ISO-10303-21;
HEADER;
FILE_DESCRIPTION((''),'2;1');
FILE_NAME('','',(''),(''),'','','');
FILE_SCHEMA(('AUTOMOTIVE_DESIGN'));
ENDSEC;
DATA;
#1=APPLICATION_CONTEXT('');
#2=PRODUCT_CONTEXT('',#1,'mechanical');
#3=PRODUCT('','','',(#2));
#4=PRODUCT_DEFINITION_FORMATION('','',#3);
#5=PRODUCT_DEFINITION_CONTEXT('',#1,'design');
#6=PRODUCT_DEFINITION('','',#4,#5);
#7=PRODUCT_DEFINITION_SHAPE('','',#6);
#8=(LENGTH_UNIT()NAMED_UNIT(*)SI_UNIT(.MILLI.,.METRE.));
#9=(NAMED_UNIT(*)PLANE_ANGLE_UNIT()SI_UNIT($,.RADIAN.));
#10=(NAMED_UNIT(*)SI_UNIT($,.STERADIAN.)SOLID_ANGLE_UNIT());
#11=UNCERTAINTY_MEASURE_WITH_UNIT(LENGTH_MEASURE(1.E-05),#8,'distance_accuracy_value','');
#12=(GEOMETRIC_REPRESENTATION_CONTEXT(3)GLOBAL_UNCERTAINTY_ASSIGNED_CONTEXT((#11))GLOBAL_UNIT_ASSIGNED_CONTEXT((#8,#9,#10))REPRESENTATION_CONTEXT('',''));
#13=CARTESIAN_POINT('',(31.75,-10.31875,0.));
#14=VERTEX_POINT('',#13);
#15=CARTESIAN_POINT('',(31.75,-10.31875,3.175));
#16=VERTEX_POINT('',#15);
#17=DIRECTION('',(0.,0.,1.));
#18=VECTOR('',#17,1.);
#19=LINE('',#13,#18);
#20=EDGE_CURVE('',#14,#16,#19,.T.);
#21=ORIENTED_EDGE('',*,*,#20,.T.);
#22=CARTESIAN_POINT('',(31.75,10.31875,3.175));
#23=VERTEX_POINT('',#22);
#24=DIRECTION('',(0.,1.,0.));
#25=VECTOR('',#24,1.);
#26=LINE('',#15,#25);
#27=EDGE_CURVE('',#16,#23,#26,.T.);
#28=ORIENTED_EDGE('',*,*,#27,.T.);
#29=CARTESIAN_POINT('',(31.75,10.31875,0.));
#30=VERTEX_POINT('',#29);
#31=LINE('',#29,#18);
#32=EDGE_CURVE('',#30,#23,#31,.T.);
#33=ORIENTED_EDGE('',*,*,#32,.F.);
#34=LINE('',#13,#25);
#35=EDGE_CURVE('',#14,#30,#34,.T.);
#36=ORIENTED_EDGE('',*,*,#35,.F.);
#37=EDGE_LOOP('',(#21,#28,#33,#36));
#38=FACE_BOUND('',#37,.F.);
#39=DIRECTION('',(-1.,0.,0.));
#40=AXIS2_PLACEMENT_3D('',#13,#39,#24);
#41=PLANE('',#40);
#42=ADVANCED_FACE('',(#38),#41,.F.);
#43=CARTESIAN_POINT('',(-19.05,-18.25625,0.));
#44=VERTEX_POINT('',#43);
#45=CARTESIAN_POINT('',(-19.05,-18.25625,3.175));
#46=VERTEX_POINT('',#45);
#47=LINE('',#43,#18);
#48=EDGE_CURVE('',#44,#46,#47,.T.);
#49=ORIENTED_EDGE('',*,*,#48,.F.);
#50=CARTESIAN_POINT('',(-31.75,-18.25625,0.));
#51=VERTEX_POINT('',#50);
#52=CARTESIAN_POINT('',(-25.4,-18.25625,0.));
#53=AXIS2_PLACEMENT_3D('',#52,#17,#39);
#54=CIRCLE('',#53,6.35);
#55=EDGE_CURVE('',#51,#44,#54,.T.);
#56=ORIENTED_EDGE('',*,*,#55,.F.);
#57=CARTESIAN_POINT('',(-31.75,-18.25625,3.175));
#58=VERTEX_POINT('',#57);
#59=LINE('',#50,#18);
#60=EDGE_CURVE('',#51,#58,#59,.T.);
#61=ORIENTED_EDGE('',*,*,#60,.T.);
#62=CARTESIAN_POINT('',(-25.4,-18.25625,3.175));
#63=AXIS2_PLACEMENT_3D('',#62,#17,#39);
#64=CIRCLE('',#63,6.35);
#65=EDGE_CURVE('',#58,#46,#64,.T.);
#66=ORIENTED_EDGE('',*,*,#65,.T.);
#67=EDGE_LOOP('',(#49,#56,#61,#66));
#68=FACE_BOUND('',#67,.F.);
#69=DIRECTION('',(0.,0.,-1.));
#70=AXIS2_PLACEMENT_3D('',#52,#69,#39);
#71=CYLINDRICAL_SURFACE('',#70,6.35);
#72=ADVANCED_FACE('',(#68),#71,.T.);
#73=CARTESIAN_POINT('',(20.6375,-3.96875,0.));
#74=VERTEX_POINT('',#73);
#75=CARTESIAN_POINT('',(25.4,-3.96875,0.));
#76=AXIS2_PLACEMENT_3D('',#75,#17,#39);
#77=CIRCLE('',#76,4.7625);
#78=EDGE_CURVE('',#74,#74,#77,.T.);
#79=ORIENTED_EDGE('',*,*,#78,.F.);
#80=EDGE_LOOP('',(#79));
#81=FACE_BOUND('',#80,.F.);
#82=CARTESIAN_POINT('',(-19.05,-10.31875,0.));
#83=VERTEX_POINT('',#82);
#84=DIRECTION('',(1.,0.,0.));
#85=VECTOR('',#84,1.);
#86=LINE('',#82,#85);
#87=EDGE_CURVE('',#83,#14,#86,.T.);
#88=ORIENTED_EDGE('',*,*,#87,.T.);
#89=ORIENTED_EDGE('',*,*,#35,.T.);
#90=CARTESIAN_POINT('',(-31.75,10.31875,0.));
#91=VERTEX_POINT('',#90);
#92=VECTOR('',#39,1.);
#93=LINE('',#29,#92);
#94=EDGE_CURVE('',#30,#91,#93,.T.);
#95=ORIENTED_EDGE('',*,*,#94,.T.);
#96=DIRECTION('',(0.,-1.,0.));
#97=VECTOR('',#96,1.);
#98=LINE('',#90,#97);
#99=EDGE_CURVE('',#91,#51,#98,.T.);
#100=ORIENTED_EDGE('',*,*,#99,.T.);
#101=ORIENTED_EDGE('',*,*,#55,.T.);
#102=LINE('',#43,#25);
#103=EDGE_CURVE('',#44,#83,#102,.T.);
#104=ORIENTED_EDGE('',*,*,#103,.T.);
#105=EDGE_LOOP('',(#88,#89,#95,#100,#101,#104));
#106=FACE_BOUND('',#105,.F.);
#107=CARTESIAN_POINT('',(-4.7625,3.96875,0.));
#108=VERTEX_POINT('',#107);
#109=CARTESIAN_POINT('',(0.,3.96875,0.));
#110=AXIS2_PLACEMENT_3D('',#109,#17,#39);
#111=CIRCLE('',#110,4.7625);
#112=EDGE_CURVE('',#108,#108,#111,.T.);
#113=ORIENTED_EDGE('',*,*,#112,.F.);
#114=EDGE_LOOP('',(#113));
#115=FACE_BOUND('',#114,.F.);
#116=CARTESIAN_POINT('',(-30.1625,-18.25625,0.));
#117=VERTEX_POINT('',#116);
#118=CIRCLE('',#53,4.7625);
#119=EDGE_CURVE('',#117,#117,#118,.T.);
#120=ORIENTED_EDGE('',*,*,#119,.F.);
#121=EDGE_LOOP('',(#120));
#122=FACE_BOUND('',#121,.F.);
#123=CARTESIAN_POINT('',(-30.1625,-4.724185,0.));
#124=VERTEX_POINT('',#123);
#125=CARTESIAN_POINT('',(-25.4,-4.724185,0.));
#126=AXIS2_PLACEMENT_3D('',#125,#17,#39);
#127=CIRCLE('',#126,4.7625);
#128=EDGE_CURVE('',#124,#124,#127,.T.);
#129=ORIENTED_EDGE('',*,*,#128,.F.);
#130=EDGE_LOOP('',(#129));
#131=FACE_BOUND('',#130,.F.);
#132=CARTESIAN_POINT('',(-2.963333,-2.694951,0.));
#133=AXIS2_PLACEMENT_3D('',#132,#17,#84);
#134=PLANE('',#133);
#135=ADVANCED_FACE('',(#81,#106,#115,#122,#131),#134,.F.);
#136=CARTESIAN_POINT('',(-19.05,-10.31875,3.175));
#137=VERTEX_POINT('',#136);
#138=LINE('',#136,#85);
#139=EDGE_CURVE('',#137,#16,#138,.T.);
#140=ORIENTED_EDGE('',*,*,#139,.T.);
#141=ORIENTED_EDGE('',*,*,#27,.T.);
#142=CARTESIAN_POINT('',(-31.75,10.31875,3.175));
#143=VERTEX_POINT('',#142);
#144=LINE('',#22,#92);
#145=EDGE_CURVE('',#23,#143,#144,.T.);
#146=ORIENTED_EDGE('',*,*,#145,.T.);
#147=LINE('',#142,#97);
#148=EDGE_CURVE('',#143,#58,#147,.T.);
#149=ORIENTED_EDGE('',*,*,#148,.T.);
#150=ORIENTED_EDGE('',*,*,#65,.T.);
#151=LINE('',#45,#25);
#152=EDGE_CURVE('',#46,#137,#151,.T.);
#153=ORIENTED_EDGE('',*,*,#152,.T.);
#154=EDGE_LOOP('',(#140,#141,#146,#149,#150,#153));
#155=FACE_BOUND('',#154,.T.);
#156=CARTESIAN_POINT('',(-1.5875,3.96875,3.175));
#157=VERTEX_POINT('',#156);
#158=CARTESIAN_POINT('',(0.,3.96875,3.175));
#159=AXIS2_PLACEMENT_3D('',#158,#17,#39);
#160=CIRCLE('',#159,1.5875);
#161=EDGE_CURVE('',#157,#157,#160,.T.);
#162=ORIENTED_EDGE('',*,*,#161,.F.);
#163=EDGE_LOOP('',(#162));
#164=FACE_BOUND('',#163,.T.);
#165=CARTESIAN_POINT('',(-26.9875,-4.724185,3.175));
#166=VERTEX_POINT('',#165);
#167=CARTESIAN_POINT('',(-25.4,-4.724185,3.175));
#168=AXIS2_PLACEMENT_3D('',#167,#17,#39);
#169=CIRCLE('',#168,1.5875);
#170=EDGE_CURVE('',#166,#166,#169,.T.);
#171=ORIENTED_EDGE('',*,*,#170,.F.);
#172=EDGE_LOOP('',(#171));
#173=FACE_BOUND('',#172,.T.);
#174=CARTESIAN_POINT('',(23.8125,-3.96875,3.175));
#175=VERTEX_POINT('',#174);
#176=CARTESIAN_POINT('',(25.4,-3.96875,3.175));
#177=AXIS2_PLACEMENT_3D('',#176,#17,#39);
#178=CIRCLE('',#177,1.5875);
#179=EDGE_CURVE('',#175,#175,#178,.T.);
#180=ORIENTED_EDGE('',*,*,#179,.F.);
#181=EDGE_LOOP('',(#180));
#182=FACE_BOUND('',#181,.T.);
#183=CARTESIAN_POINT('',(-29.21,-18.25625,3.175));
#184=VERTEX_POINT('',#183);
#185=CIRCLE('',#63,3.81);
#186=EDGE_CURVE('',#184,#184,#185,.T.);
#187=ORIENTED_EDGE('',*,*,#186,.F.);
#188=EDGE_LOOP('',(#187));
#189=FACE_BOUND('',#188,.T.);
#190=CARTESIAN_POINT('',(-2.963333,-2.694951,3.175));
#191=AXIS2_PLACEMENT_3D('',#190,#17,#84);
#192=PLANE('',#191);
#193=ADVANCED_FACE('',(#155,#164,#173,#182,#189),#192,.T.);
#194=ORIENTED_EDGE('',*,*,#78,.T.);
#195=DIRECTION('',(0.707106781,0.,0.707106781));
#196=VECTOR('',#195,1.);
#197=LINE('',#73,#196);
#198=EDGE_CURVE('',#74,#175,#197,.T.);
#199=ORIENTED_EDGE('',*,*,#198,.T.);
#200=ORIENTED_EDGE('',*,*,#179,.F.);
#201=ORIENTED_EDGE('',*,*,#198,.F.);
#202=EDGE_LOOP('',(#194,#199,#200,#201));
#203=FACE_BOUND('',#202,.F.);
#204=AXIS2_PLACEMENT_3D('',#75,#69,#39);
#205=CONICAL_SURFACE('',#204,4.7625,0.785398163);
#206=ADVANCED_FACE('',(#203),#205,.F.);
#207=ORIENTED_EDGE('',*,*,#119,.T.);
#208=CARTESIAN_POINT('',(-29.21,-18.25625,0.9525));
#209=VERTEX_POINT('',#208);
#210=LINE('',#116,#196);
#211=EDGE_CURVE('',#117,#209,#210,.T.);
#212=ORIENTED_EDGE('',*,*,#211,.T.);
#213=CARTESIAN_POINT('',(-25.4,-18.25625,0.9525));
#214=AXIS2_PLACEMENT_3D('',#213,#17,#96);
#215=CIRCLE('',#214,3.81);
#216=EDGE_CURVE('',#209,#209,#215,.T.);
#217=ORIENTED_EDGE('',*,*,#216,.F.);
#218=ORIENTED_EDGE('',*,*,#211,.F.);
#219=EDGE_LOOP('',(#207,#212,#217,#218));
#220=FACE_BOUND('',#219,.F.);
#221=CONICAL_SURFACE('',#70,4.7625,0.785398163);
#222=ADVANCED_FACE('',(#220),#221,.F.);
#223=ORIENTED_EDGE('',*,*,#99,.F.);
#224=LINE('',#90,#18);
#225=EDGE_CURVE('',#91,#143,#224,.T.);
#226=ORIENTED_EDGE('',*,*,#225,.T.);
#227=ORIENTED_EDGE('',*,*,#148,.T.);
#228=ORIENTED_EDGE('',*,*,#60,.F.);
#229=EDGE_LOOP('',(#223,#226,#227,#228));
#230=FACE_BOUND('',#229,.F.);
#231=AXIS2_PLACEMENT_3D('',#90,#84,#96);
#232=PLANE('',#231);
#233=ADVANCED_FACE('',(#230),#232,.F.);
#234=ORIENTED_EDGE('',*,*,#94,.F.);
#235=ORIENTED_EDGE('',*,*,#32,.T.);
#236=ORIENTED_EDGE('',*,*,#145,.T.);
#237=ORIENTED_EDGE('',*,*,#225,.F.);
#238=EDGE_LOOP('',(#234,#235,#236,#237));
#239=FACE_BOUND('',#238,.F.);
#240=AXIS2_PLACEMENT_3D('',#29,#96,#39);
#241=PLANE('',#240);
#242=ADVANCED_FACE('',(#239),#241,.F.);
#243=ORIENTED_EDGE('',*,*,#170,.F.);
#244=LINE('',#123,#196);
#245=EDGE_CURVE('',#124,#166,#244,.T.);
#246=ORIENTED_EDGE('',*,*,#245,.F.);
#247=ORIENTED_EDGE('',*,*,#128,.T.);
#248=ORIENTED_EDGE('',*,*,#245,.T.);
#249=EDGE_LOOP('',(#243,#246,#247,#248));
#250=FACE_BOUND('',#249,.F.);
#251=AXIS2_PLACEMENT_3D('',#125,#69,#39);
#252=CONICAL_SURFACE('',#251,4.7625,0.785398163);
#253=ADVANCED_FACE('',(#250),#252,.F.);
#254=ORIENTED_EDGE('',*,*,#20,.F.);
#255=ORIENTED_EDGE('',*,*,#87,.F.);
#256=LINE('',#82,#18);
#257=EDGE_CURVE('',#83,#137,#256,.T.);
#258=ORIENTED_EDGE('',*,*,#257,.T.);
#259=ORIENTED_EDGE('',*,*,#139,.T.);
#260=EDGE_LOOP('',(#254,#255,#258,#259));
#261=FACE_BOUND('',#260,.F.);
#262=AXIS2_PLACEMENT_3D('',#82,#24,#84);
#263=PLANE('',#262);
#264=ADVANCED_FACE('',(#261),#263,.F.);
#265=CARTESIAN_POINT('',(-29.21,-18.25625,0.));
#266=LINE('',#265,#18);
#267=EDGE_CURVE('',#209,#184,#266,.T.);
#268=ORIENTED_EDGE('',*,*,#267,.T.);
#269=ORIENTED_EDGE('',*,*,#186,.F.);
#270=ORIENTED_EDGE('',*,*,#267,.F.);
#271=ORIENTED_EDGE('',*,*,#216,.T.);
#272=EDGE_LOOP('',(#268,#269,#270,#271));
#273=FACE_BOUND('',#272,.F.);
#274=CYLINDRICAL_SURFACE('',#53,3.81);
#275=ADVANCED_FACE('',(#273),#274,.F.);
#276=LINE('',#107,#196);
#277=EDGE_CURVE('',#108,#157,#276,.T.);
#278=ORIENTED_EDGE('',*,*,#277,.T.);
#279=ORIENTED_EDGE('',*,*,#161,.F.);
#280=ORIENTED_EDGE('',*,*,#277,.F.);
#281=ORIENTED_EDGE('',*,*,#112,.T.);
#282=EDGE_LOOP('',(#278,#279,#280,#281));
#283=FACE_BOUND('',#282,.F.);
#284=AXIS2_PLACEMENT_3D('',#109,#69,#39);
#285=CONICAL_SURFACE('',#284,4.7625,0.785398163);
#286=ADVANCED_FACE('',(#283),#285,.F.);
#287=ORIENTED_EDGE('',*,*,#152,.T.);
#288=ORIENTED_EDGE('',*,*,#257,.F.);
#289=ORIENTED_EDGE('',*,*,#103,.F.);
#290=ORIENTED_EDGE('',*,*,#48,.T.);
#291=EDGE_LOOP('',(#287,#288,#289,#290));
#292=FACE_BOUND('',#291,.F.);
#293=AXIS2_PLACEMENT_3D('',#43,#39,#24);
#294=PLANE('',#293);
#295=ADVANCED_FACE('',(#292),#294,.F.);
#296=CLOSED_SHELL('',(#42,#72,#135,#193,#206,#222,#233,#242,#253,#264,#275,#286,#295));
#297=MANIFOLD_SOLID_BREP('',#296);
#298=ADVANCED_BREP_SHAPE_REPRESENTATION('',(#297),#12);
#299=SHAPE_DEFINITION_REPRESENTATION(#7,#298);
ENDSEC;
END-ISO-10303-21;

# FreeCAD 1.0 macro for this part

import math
import FreeCAD as App
import Part
import Sketcher
Q = App.Units.Quantity

doc = App.newDocument("Part")
body = doc.addObject("PartDesign::Body", "Body")

sketch1 = body.newObject("Sketcher::SketchObject", "Sketch")
sketch1.AttachmentSupport = (doc.getObject("XY_Plane"), [""])
sketch1.MapMode = "FlatFace"
sketch1.addGeometry([
    Part.LineSegment(App.Vector(31.75, -10.31875, 0), App.Vector(31.75, 10.31875, 0)),
    Part.LineSegment(App.Vector(31.75, 10.31875, 0), App.Vector(-31.75, 10.31875, 0)),
    Part.LineSegment(App.Vector(-31.75, 10.31875, 0), App.Vector(-31.75, -18.25625, 0)),
    Part.ArcOfCircle(Part.Circle(App.Vector(-25.4, -18.25625, 0), App.Vector(0, 0, 1), 6.35), math.radians(180), math.radians(360)),
    Part.LineSegment(App.Vector(-19.05, -18.25625, 0), App.Vector(-19.05, -10.31875, 0)),
    Part.LineSegment(App.Vector(-19.05, -10.31875, 0), App.Vector(31.75, -10.31875, 0)),
], False)
sketch1.addConstraint([
    Sketcher.Constraint("Coincident", 0, 2, 1, 1),
    Sketcher.Constraint("Coincident", 1, 2, 2, 1),
    Sketcher.Constraint("Tangent", 2, 2, 3, 1),
    Sketcher.Constraint("Tangent", 3, 2, 4, 1),
    Sketcher.Constraint("Coincident", 4, 2, 5, 1),
    Sketcher.Constraint("Coincident", 5, 2, 0, 1),
    Sketcher.Constraint("Vertical", 0),
    Sketcher.Constraint("Horizontal", 1),
    Sketcher.Constraint("Vertical", 2),
    Sketcher.Constraint("Vertical", 4),
    Sketcher.Constraint("Horizontal", 5),
    Sketcher.Constraint("Symmetric", 1, 2, 5, 2, -1, 1),
    Sketcher.Constraint("DistanceX", 5, 1, 5, 2, Q("2 in")),
    Sketcher.Constraint("Radius", 3, Q("0.25 in")),
    Sketcher.Constraint("DistanceY", 0, 1, 0, 2, Q("0.8125 in")),
    Sketcher.Constraint("DistanceY", 2, 2, 2, 1, Q("1.125 in")),
])
pad1 = body.newObject("PartDesign::Pad", "Pad")
pad1.Profile = sketch1
pad1.Length = Q("0.125 in")

sketch2 = body.newObject("Sketcher::SketchObject", "Sketch001")
sketch2.AttachmentSupport = (doc.getObject("XY_Plane"), [""])
sketch2.MapMode = "FlatFace"
sketch2.addGeometry([
    Part.Circle(App.Vector(25.4, -3.96875, 0), App.Vector(0, 0, 1), 1.27),
    Part.Circle(App.Vector(0, 3.96875, 0), App.Vector(0, 0, 1), 1.27),
    Part.Circle(App.Vector(-25.4, -4.724185, 0), App.Vector(0, 0, 1), 1.27),
], False)
sketch2.addConstraint([
    Sketcher.Constraint("Equal", 0, 1),
    Sketcher.Constraint("Equal", 1, 2),
    Sketcher.Constraint("PointOnObject", 1, 3, -2),
    Sketcher.Constraint("Diameter", 0, Q("0.1 in")),
    Sketcher.Constraint("DistanceX", -1, 1, 0, 3, Q("1 in")),
    Sketcher.Constraint("DistanceX", 2, 3, -1, 1, Q("1 in")),
    Sketcher.Constraint("DistanceY", 0, 3, -1, 1, Q("0.15625 in")),
    Sketcher.Constraint("DistanceY", -1, 1, 1, 3, Q("0.15625 in")),
    Sketcher.Constraint("DistanceY", 2, 3, -1, 1, Q("4.724185 mm")),
])
doc.recompute()
hole = body.newObject("PartDesign::Hole", "Hole")
hole.Profile = sketch2
hole.ThreadType = "None"
hole.Diameter = Q("0.1 in")
hole.DepthType = "ThroughAll"
hole.HoleCutType = "Countersink"
hole.HoleCutDiameter = Q("0.375 in")
hole.HoleCutCountersinkAngle = 90
hole.Reversed = True

sketch3 = body.newObject("Sketcher::SketchObject", "Sketch002")
sketch3.AttachmentSupport = (doc.getObject("XY_Plane"), [""])
sketch3.MapMode = "FlatFace"
sketch3.addGeometry(Part.Circle(App.Vector(-25.4, -18.25625, 0), App.Vector(0, 0, 1), 3.81), False)
sketch3.addConstraint([
    Sketcher.Constraint("Diameter", 0, Q("0.3 in")),
    Sketcher.Constraint("DistanceX", 0, 3, -1, 1, Q("1 in")),
    Sketcher.Constraint("DistanceY", 0, 3, -1, 1, Q("0.71875 in")),
])
doc.recompute()
hole2 = body.newObject("PartDesign::Hole", "Hole001")
hole2.Profile = sketch3
hole2.ThreadType = "None"
hole2.Diameter = Q("0.3 in")
hole2.DepthType = "ThroughAll"
hole2.HoleCutType = "Countersink"
hole2.HoleCutDiameter = Q("0.375 in")
hole2.HoleCutCountersinkAngle = 90
hole2.Reversed = True

doc.recompute()
